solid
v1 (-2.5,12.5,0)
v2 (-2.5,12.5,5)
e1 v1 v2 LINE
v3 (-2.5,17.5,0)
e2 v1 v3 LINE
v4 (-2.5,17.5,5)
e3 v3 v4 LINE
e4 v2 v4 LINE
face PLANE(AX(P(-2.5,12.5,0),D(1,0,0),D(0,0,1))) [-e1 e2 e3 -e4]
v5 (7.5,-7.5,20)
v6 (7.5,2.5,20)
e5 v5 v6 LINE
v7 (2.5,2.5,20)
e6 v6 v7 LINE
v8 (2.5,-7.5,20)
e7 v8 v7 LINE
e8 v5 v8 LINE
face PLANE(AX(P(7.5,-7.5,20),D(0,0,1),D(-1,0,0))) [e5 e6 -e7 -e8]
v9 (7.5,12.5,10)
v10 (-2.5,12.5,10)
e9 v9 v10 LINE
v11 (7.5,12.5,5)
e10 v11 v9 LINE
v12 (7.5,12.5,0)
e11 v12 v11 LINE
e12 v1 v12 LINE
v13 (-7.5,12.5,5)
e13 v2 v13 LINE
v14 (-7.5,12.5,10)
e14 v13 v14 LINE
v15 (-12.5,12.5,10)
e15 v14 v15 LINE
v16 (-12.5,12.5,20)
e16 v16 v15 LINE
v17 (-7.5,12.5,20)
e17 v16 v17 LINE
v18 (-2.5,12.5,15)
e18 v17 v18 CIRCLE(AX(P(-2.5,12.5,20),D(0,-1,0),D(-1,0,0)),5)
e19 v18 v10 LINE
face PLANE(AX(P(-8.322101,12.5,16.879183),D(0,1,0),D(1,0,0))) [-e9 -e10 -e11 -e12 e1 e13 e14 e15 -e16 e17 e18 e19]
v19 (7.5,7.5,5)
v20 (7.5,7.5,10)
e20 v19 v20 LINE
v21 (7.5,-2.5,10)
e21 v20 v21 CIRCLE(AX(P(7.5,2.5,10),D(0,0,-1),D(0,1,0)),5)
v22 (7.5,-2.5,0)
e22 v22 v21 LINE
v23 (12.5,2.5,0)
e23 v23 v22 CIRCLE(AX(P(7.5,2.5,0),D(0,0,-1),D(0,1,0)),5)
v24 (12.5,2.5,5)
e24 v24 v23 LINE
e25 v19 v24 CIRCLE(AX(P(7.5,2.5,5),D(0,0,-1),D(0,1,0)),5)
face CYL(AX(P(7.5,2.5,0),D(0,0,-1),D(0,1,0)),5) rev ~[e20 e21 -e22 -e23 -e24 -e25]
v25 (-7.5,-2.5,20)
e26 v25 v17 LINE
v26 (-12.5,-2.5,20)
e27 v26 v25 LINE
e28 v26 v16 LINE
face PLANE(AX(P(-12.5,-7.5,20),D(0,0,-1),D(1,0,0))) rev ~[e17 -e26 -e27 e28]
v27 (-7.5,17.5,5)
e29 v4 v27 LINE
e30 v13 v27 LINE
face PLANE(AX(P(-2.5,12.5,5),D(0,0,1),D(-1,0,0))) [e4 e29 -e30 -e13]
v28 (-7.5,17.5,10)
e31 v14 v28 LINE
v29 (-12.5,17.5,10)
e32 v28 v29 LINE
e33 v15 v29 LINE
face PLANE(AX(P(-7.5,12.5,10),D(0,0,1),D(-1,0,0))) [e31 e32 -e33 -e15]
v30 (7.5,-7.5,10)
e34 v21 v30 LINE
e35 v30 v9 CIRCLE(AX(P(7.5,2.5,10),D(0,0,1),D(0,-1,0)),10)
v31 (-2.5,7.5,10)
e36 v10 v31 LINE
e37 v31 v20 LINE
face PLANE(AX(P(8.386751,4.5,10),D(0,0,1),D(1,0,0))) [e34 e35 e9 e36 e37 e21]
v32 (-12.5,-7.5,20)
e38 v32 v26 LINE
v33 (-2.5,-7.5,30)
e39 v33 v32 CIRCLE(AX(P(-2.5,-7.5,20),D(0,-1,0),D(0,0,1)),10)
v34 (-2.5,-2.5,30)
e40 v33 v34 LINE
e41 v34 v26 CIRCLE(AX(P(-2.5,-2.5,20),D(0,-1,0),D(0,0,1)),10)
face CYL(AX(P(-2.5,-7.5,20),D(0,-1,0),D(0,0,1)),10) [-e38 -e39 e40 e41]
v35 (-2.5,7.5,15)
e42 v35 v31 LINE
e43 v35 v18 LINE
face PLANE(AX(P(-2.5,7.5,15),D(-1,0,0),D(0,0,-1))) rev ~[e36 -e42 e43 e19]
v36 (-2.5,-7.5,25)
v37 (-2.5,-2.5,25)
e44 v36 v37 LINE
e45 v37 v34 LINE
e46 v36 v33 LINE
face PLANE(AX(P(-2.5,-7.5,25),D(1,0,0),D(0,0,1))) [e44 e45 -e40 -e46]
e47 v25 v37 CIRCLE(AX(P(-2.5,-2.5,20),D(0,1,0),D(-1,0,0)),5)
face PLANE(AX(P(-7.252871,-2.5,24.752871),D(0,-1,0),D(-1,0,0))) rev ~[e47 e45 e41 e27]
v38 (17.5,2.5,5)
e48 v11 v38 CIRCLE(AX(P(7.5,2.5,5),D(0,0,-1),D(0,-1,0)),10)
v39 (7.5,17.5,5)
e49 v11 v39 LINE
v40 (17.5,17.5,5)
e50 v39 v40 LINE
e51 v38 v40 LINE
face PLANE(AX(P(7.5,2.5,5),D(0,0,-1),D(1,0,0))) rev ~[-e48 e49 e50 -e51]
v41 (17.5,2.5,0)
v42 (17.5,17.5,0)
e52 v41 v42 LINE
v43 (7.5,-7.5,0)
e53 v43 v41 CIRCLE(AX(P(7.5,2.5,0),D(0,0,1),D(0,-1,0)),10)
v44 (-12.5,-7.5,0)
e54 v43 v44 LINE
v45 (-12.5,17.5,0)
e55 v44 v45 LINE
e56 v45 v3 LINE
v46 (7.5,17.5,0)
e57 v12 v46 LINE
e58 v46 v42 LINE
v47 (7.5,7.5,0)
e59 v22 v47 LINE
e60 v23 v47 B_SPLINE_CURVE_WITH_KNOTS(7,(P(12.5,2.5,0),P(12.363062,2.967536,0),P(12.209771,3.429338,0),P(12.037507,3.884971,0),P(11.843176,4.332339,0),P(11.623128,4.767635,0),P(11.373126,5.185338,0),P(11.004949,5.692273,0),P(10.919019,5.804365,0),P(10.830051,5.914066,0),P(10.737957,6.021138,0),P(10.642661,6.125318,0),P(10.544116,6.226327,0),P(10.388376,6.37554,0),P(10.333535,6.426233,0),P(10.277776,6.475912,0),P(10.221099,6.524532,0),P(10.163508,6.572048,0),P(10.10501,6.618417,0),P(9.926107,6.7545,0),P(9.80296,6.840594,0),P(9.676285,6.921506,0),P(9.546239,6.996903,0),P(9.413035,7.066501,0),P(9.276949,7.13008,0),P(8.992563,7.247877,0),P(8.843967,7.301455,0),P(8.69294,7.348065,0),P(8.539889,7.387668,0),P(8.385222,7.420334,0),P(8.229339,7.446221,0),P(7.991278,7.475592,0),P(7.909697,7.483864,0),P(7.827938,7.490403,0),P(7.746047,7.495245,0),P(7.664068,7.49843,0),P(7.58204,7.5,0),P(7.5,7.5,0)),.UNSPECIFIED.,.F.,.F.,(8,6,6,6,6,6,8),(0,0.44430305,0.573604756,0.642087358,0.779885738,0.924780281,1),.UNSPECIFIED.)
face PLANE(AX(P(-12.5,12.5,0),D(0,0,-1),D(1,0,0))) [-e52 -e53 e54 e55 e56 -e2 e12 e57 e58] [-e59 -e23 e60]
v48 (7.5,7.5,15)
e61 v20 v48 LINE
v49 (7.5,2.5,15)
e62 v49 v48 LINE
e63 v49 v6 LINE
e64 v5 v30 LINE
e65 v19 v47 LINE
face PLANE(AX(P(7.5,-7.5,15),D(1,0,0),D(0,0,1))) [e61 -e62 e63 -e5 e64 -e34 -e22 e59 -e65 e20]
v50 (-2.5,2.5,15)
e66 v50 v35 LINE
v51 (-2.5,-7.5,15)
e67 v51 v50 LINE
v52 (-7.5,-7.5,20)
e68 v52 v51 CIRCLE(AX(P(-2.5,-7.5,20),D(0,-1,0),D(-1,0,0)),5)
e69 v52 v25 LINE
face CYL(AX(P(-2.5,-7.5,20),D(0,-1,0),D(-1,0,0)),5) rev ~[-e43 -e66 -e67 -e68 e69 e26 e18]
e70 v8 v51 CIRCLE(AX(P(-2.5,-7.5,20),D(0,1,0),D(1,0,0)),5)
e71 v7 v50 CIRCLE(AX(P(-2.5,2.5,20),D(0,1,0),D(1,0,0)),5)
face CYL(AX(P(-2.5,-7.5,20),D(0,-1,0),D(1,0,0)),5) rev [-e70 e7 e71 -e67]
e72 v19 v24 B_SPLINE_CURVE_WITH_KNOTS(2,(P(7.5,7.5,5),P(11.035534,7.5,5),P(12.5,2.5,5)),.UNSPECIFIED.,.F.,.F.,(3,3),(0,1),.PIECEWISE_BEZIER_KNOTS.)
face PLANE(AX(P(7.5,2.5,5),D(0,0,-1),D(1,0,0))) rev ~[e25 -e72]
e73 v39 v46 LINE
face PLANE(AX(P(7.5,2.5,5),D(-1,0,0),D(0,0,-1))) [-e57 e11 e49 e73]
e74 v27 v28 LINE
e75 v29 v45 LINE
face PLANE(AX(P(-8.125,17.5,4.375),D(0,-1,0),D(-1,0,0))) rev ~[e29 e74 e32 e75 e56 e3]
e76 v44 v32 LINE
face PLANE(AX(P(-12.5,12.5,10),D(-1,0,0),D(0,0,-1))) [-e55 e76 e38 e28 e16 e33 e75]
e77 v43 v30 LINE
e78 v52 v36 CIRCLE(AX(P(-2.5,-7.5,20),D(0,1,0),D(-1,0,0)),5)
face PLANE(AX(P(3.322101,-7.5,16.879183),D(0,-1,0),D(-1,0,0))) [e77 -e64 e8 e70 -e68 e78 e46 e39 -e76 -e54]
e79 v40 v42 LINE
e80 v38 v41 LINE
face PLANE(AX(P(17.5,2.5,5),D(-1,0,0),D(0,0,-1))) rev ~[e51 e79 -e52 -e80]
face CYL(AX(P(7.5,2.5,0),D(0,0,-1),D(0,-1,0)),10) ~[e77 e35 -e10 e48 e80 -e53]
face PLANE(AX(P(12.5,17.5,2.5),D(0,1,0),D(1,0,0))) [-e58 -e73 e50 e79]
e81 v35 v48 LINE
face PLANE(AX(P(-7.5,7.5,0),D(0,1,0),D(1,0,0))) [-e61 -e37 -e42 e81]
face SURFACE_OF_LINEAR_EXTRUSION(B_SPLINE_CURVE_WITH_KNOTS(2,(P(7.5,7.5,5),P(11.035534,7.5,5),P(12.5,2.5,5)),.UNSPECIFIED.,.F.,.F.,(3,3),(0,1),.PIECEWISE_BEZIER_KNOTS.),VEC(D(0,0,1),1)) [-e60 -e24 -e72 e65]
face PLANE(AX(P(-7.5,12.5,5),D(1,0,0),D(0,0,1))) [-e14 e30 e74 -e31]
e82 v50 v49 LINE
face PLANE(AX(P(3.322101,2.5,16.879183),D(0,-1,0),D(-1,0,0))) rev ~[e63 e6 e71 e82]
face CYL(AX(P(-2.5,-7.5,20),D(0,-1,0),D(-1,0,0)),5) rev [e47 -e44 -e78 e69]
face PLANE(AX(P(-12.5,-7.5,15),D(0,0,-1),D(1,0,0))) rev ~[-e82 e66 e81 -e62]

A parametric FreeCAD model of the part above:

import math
import FreeCAD as App
import Part
import Sketcher
from FreeCAD import Vector
Q = App.Units.Quantity


def add_polygon(sketch, points):
    """Adds a closed chain of lines whose ends are joined by coincident constraints."""
    first, n = sketch.GeometryCount, len(points)
    for a, b in zip(points, points[1:] + points[:1]):
        sketch.addGeometry(Part.LineSegment(App.Vector(*a, 0), App.Vector(*b, 0)), False)
    for i in range(n):
        sketch.addConstraint(Sketcher.Constraint("Coincident", first + i, 2, first + (i + 1) % n, 1))

doc = App.newDocument("Part")
params = doc.addObject("Spreadsheet::Sheet", "Params")
for row, (alias, value) in enumerate([
    ("sketch1_width", "15 mm"),
    ("pad1_length", "15 mm"),
    ("sketch2_radius", "5 mm"),
    ("sketch2_radius2", "10 mm"),
    ("sketch2_width", "10 mm"),
    ("pad2_length", "10 mm"),
    ("sketch3_width", "5 mm"),
    ("sketch3_height", "15 mm"),
    ("pad3_length", "5 mm"),
    ("sketch4_width", "5 mm"),
    ("sketch4_height", "15 mm"),
    ("pad4_length", "20 mm"),
    ("sketch5_radius", "5 mm"),
    ("pad5_length", "20 mm"),
    ("sketch6_radius", "5 mm"),
    ("sketch6_radius2", "10 mm"),
    ("pad6_length", "5 mm"),
    ("sketch7_radius", "5 mm"),
    ("sketch7_width", "10 mm"),
    ("pad7_length", "10 mm"),
    ("sketch8_width", "10 mm"),
    ("sketch8_height", "5 mm"),
    ("pad8_length", "15 mm"),
    ("pocket1_length", "15 mm"),
    ("sketch10_width", "10 mm"),
    ("pad9_length", "5 mm"),
], start=1):
    params.set(f"A{row}", alias)
    params.set(f"B{row}", "=" + value)
    params.setAlias(f"B{row}", alias)

body = doc.addObject("PartDesign::Body", "Body")

# Sketch on XY plane
sketch1 = body.newObject("Sketcher::SketchObject", "Sketch")
sketch1.AttachmentSupport = (doc.getObject("XY_Plane"), [""])
sketch1.MapMode = "FlatFace"
add_polygon(sketch1, [(-7.5, 7.5), (-7.5, -7.5), (7.5, -7.5), (7.5, 7.5)])  # lines 0-3
sketch1.addConstraint(Sketcher.Constraint("Vertical", 0))
sketch1.addConstraint(Sketcher.Constraint("Horizontal", 1))
sketch1.addConstraint(Sketcher.Constraint("Vertical", 2))
sketch1.addConstraint(Sketcher.Constraint("Horizontal", 3))
sketch1.addConstraint(Sketcher.Constraint("Symmetric", 0, 2, 2, 2, -1, 1))
sketch1.addConstraint(Sketcher.Constraint("Equal", 3, 0))
sketch1.addConstraint(Sketcher.Constraint("DistanceX", 1, 1, 1, 2, Q("15 mm")))
sketch1.setExpression("Constraints[10]", "Params.sketch1_width")
pad1 = body.newObject("PartDesign::Pad", "Pad")
pad1.Profile = sketch1
pad1.setExpression("Length", "Params.pad1_length")

# Sketch on XY plane
sketch2 = body.newObject("Sketcher::SketchObject", "Sketch001")
sketch2.AttachmentSupport = (doc.getObject("XY_Plane"), [""])
sketch2.MapMode = "FlatFace"
sketch2.addGeometry(Part.LineSegment(Vector(7.5, 12.5, 0), Vector(-2.5, 12.5, 0)), False)
sketch2.addGeometry(Part.LineSegment(Vector(-2.5, 12.5, 0), Vector(-2.5, 7.5, 0)), False)
sketch2.addGeometry(Part.LineSegment(Vector(-2.5, 7.5, 0), Vector(7.5, 7.5, 0)), False)
sketch2.addGeometry(Part.ArcOfCircle(Part.Circle(Vector(7.5, 2.5, 0), Vector(0, 0, 1), 5), math.radians(-90), math.radians(90)), False)
sketch2.addGeometry(Part.LineSegment(Vector(7.5, -2.5, 0), Vector(7.5, -7.5, 0)), False)
sketch2.addGeometry(Part.ArcOfCircle(Part.Circle(Vector(7.5, 2.5, 0), Vector(0, 0, 1), 10), math.radians(-90), math.radians(90)), False)
sketch2.addConstraint(Sketcher.Constraint("Coincident", 0, 2, 1, 1))
sketch2.addConstraint(Sketcher.Constraint("Coincident", 1, 2, 2, 1))
sketch2.addConstraint(Sketcher.Constraint("Tangent", 2, 2, 3, 2))
sketch2.addConstraint(Sketcher.Constraint("Coincident", 3, 1, 4, 1))
sketch2.addConstraint(Sketcher.Constraint("Coincident", 4, 2, 5, 1))
sketch2.addConstraint(Sketcher.Constraint("Tangent", 5, 2, 0, 1))
sketch2.addConstraint(Sketcher.Constraint("Horizontal", 0))
sketch2.addConstraint(Sketcher.Constraint("Vertical", 1))
sketch2.addConstraint(Sketcher.Constraint("Horizontal", 2))
sketch2.addConstraint(Sketcher.Constraint("Vertical", 4))
sketch2.addConstraint(Sketcher.Constraint("Coincident", 5, 3, 3, 3))
sketch2.addConstraint(Sketcher.Constraint("Symmetric", 2, 2, 4, 2, -1))
sketch2.addConstraint(Sketcher.Constraint("Radius", 3, Q("5 mm")))
sketch2.addConstraint(Sketcher.Constraint("Radius", 5, Q("10 mm")))
sketch2.addConstraint(Sketcher.Constraint("DistanceX", 0, 2, 0, 1, Q("10 mm")))
sketch2.addConstraint(Sketcher.Constraint("DistanceX", -1, 1, 3, 3, Q("7.5 mm")))
sketch2.setExpression("Constraints[12]", "Params.sketch2_radius")
sketch2.setExpression("Constraints[13]", "Params.sketch2_radius2")
sketch2.setExpression("Constraints[14]", "Params.sketch2_width")
pad2 = body.newObject("PartDesign::Pad", "Pad001")
pad2.Profile = sketch2
pad2.setExpression("Length", "Params.pad2_length")

# Sketch on XZ plane
sketch3 = body.newObject("Sketcher::SketchObject", "Sketch002")
sketch3.AttachmentSupport = (doc.getObject("XZ_Plane"), [""])
sketch3.MapMode = "FlatFace"
sketch3.AttachmentOffset = App.Placement(Vector(0, 0, -7.5), App.Rotation())
add_polygon(sketch3, [(-7.5, 0), (-7.5, 15), (-2.5, 15), (-2.5, 0)])  # lines 0-3
sketch3.addConstraint(Sketcher.Constraint("Vertical", 0))
sketch3.addConstraint(Sketcher.Constraint("Horizontal", 1))
sketch3.addConstraint(Sketcher.Constraint("Vertical", 2))
sketch3.addConstraint(Sketcher.Constraint("Horizontal", 3))
sketch3.addConstraint(Sketcher.Constraint("PointOnObject", 2, 2, -1))
sketch3.addConstraint(Sketcher.Constraint("DistanceX", 1, 1, 1, 2, Q("5 mm")))
sketch3.addConstraint(Sketcher.Constraint("DistanceY", 0, 1, 0, 2, Q("15 mm")))
sketch3.addConstraint(Sketcher.Constraint("DistanceX", 0, 2, -1, 1, Q("7.5 mm")))
sketch3.setExpression("Constraints[9]", "Params.sketch3_width")
sketch3.setExpression("Constraints[10]", "Params.sketch3_height")
pad3 = body.newObject("PartDesign::Pad", "Pad002")
pad3.Profile = sketch3
pad3.setExpression("Length", "Params.pad3_length")
pad3.Reversed = True

# Sketch on XZ plane
sketch4 = body.newObject("Sketcher::SketchObject", "Sketch003")
sketch4.AttachmentSupport = (doc.getObject("XZ_Plane"), [""])
sketch4.MapMode = "FlatFace"
sketch4.AttachmentOffset = App.Placement(Vector(0, 0, 7.5), App.Rotation())
add_polygon(sketch4, [(-12.5, 0), (-12.5, 15), (-7.5, 15), (-7.5, 0)])  # lines 0-3
sketch4.addConstraint(Sketcher.Constraint("Vertical", 0))
sketch4.addConstraint(Sketcher.Constraint("Horizontal", 1))
sketch4.addConstraint(Sketcher.Constraint("Vertical", 2))
sketch4.addConstraint(Sketcher.Constraint("Horizontal", 3))
sketch4.addConstraint(Sketcher.Constraint("PointOnObject", 2, 2, -1))
sketch4.addConstraint(Sketcher.Constraint("DistanceX", 1, 1, 1, 2, Q("5 mm")))
sketch4.addConstraint(Sketcher.Constraint("DistanceY", 0, 1, 0, 2, Q("15 mm")))
sketch4.addConstraint(Sketcher.Constraint("DistanceX", 0, 2, -1, 1, Q("12.5 mm")))
sketch4.setExpression("Constraints[9]", "Params.sketch4_width")
sketch4.setExpression("Constraints[10]", "Params.sketch4_height")
pad4 = body.newObject("PartDesign::Pad", "Pad003")
pad4.Profile = sketch4
pad4.setExpression("Length", "Params.pad4_length")
pad4.Reversed = True

# Sketch on XZ plane
sketch5 = body.newObject("Sketcher::SketchObject", "Sketch004")
sketch5.AttachmentSupport = (doc.getObject("XZ_Plane"), [""])
sketch5.MapMode = "FlatFace"
sketch5.AttachmentOffset = App.Placement(Vector(0, 0, 7.5), App.Rotation())
sketch5.addGeometry(Part.LineSegment(Vector(-12.5, 15, 0), Vector(-12.5, 20, 0)), False)
sketch5.addGeometry(Part.LineSegment(Vector(-12.5, 20, 0), Vector(-7.5, 20, 0)), False)
sketch5.addGeometry(Part.ArcOfCircle(Part.Circle(Vector(-2.5, 20, 0), Vector(0, 0, 1), 5), math.radians(180), math.radians(270)), False)
sketch5.addGeometry(Part.LineSegment(Vector(-2.5, 15, 0), Vector(-12.5, 15, 0)), False)
sketch5.addConstraint(Sketcher.Constraint("Coincident", 0, 2, 1, 1))
sketch5.addConstraint(Sketcher.Constraint("Coincident", 1, 2, 2, 1))
sketch5.addConstraint(Sketcher.Constraint("Tangent", 2, 2, 3, 1))
sketch5.addConstraint(Sketcher.Constraint("Coincident", 3, 2, 0, 1))
sketch5.addConstraint(Sketcher.Constraint("Vertical", 0))
sketch5.addConstraint(Sketcher.Constraint("Horizontal", 1))
sketch5.addConstraint(Sketcher.Constraint("Horizontal", 3))
sketch5.addConstraint(Sketcher.Constraint("Horizontal", 2, 3, 0, 2))
sketch5.addConstraint(Sketcher.Constraint("Equal", 1, 0))
sketch5.addConstraint(Sketcher.Constraint("Radius", 2, Q("5 mm")))
sketch5.addConstraint(Sketcher.Constraint("DistanceY", -1, 1, 2, 3, Q("20 mm")))
sketch5.addConstraint(Sketcher.Constraint("DistanceX", 2, 3, -1, 1, Q("2.5 mm")))
sketch5.setExpression("Constraints[9]", "Params.sketch5_radius")
pad5 = body.newObject("PartDesign::Pad", "Pad004")
pad5.Profile = sketch5
pad5.setExpression("Length", "Params.pad5_length")
pad5.Reversed = True

# Sketch on XZ plane
sketch6 = body.newObject("Sketcher::SketchObject", "Sketch005")
sketch6.AttachmentSupport = (doc.getObject("XZ_Plane"), [""])
sketch6.MapMode = "FlatFace"
sketch6.AttachmentOffset = App.Placement(Vector(0, 0, 7.5), App.Rotation())
sketch6.addGeometry(Part.LineSegment(Vector(-2.5, 30, 0), Vector(-2.5, 25, 0)), False)
sketch6.addGeometry(Part.ArcOfCircle(Part.Circle(Vector(-2.5, 20, 0), Vector(0, 0, 1), 5), math.radians(90), math.radians(180)), False)
sketch6.addGeometry(Part.LineSegment(Vector(-7.5, 20, 0), Vector(-12.5, 20, 0)), False)
sketch6.addGeometry(Part.ArcOfCircle(Part.Circle(Vector(-2.5, 20, 0), Vector(0, 0, 1), 10), math.radians(90), math.radians(180)), False)
sketch6.addConstraint(Sketcher.Constraint("Coincident", 0, 2, 1, 1))
sketch6.addConstraint(Sketcher.Constraint("Coincident", 1, 2, 2, 1))
sketch6.addConstraint(Sketcher.Constraint("Coincident", 2, 2, 3, 2))
sketch6.addConstraint(Sketcher.Constraint("Coincident", 3, 1, 0, 1))
sketch6.addConstraint(Sketcher.Constraint("Vertical", 0))
sketch6.addConstraint(Sketcher.Constraint("Horizontal", 2))
sketch6.addConstraint(Sketcher.Constraint("Coincident", 3, 3, 1, 3))
sketch6.addConstraint(Sketcher.Constraint("Horizontal", 3, 3, 1, 2))
sketch6.addConstraint(Sketcher.Constraint("Vertical", 3, 3, 0, 2))
sketch6.addConstraint(Sketcher.Constraint("Radius", 1, Q("5 mm")))
sketch6.addConstraint(Sketcher.Constraint("Radius", 3, Q("10 mm")))
sketch6.addConstraint(Sketcher.Constraint("DistanceY", -1, 1, 1, 3, Q("20 mm")))
sketch6.addConstraint(Sketcher.Constraint("DistanceX", 1, 3, -1, 1, Q("2.5 mm")))
sketch6.setExpression("Constraints[9]", "Params.sketch6_radius")
sketch6.setExpression("Constraints[10]", "Params.sketch6_radius2")
pad6 = body.newObject("PartDesign::Pad", "Pad005")
pad6.Profile = sketch6
pad6.setExpression("Length", "Params.pad6_length")
pad6.Reversed = True

# Sketch on XZ plane
sketch7 = body.newObject("Sketcher::SketchObject", "Sketch006")
sketch7.AttachmentSupport = (doc.getObject("XZ_Plane"), [""])
sketch7.MapMode = "FlatFace"
sketch7.AttachmentOffset = App.Placement(Vector(0, 0, 7.5), App.Rotation())
sketch7.addGeometry(Part.LineSegment(Vector(7.5, 20, 0), Vector(7.5, 15, 0)), False)
sketch7.addGeometry(Part.LineSegment(Vector(7.5, 15, 0), Vector(-2.5, 15, 0)), False)
sketch7.addGeometry(Part.ArcOfCircle(Part.Circle(Vector(-2.5, 20, 0), Vector(0, 0, 1), 5), math.radians(-90), math.radians(0)), False)
sketch7.addGeometry(Part.LineSegment(Vector(2.5, 20, 0), Vector(7.5, 20, 0)), False)
sketch7.addConstraint(Sketcher.Constraint("Coincident", 0, 2, 1, 1))
sketch7.addConstraint(Sketcher.Constraint("Tangent", 1, 2, 2, 1))
sketch7.addConstraint(Sketcher.Constraint("Coincident", 2, 2, 3, 1))
sketch7.addConstraint(Sketcher.Constraint("Coincident", 3, 2, 0, 1))
sketch7.addConstraint(Sketcher.Constraint("Vertical", 0))
sketch7.addConstraint(Sketcher.Constraint("Horizontal", 1))
sketch7.addConstraint(Sketcher.Constraint("Horizontal", 3))
sketch7.addConstraint(Sketcher.Constraint("Equal", 3, 0))
sketch7.addConstraint(Sketcher.Constraint("Radius", 2, Q("5 mm")))
sketch7.addConstraint(Sketcher.Constraint("DistanceX", 1, 2, 1, 1, Q("10 mm")))
sketch7.addConstraint(Sketcher.Constraint("DistanceY", -1, 1, 2, 3, Q("20 mm")))
sketch7.addConstraint(Sketcher.Constraint("DistanceX", 2, 3, -1, 1, Q("2.5 mm")))
sketch7.setExpression("Constraints[8]", "Params.sketch7_radius")
sketch7.setExpression("Constraints[9]", "Params.sketch7_width")
pad7 = body.newObject("PartDesign::Pad", "Pad006")
pad7.Profile = sketch7
pad7.setExpression("Length", "Params.pad7_length")
pad7.Reversed = True

# Sketch on XZ plane
sketch8 = body.newObject("Sketcher::SketchObject", "Sketch007")
sketch8.AttachmentSupport = (doc.getObject("XZ_Plane"), [""])
sketch8.MapMode = "FlatFace"
sketch8.AttachmentOffset = App.Placement(Vector(0, 0, -2.5), App.Rotation())
add_polygon(sketch8, [(7.5, 0), (7.5, 5), (17.5, 5), (17.5, 0)])  # lines 0-3
sketch8.addConstraint(Sketcher.Constraint("Vertical", 0))
sketch8.addConstraint(Sketcher.Constraint("Horizontal", 1))
sketch8.addConstraint(Sketcher.Constraint("Vertical", 2))
sketch8.addConstraint(Sketcher.Constraint("Horizontal", 3))
sketch8.addConstraint(Sketcher.Constraint("PointOnObject", 2, 2, -1))
sketch8.addConstraint(Sketcher.Constraint("DistanceX", 1, 1, 1, 2, Q("10 mm")))
sketch8.addConstraint(Sketcher.Constraint("DistanceY", 0, 1, 0, 2, Q("5 mm")))
sketch8.addConstraint(Sketcher.Constraint("DistanceX", -1, 1, 0, 2, Q("7.5 mm")))
sketch8.setExpression("Constraints[9]", "Params.sketch8_width")
sketch8.setExpression("Constraints[10]", "Params.sketch8_height")
pad8 = body.newObject("PartDesign::Pad", "Pad007")
pad8.Profile = sketch8
pad8.setExpression("Length", "Params.pad8_length")
pad8.Reversed = True

# Sketch on XY plane
sketch9 = body.newObject("Sketcher::SketchObject", "Sketch008")
sketch9.AttachmentSupport = (doc.getObject("XY_Plane"), [""])
sketch9.MapMode = "FlatFace"
sketch9.AttachmentOffset = App.Placement(Vector(0, 0, 5), App.Rotation())
sketch9.addGeometry(Part.LineSegment(Vector(7.5, 2.5, 0), Vector(12.5, 2.5, 0)), False)
sketch9.addGeometry(Part.BSplineCurve([Vector(7.5, 7.5, 0), Vector(11.035534, 7.5, 0), Vector(12.5, 2.5, 0)], [3, 3], [0, 1], False, 2, [1, 1, 1], False), False)
sketch9.addGeometry(Part.LineSegment(Vector(7.5, 7.5, 0), Vector(7.5, 2.5, 0)), False)
sketch9.addConstraint(Sketcher.Constraint("Block", 1))
sketch9.addConstraint(Sketcher.Constraint("Coincident", 0, 2, 1, 2))
sketch9.addConstraint(Sketcher.Constraint("Coincident", 1, 1, 2, 1))
sketch9.addConstraint(Sketcher.Constraint("Coincident", 2, 2, 0, 1))
sketch9.addConstraint(Sketcher.Constraint("Horizontal", 0))
sketch9.addConstraint(Sketcher.Constraint("Vertical", 2))
pocket1 = body.newObject("PartDesign::Pocket", "Pocket")
pocket1.Profile = sketch9
pocket1.setExpression("Length", "Params.pocket1_length")

# Sketch on XZ plane
sketch10 = body.newObject("Sketcher::SketchObject", "Sketch009")
sketch10.AttachmentSupport = (doc.getObject("XZ_Plane"), [""])
sketch10.MapMode = "FlatFace"
sketch10.AttachmentOffset = App.Placement(Vector(0, 0, -12.5), App.Rotation())
add_polygon(sketch10, [(-2.5, 0), (-12.5, 0), (-12.5, 10), (-7.5, 10), (-7.5, 5), (-2.5, 5)])  # lines 0-5
sketch10.addConstraint(Sketcher.Constraint("Horizontal", 0))
sketch10.addConstraint(Sketcher.Constraint("Vertical", 1))
sketch10.addConstraint(Sketcher.Constraint("Horizontal", 2))
sketch10.addConstraint(Sketcher.Constraint("Vertical", 3))
sketch10.addConstraint(Sketcher.Constraint("Horizontal", 4))
sketch10.addConstraint(Sketcher.Constraint("Vertical", 5))
sketch10.addConstraint(Sketcher.Constraint("PointOnObject", 0, 2, -1))
sketch10.addConstraint(Sketcher.Constraint("Equal", 2, 4))
sketch10.addConstraint(Sketcher.Constraint("Equal", 0, 1))
sketch10.addConstraint(Sketcher.Constraint("Equal", 4, 3))
sketch10.addConstraint(Sketcher.Constraint("DistanceX", 0, 2, 0, 1, Q("10 mm")))
sketch10.addConstraint(Sketcher.Constraint("DistanceX", 0, 2, -1, 1, Q("12.5 mm")))
sketch10.setExpression("Constraints[16]", "Params.sketch10_width")
pad9 = body.newObject("PartDesign::Pad", "Pad008")
pad9.Profile = sketch10
pad9.setExpression("Length", "Params.pad9_length")
pad9.Reversed = True

doc.recompute()
